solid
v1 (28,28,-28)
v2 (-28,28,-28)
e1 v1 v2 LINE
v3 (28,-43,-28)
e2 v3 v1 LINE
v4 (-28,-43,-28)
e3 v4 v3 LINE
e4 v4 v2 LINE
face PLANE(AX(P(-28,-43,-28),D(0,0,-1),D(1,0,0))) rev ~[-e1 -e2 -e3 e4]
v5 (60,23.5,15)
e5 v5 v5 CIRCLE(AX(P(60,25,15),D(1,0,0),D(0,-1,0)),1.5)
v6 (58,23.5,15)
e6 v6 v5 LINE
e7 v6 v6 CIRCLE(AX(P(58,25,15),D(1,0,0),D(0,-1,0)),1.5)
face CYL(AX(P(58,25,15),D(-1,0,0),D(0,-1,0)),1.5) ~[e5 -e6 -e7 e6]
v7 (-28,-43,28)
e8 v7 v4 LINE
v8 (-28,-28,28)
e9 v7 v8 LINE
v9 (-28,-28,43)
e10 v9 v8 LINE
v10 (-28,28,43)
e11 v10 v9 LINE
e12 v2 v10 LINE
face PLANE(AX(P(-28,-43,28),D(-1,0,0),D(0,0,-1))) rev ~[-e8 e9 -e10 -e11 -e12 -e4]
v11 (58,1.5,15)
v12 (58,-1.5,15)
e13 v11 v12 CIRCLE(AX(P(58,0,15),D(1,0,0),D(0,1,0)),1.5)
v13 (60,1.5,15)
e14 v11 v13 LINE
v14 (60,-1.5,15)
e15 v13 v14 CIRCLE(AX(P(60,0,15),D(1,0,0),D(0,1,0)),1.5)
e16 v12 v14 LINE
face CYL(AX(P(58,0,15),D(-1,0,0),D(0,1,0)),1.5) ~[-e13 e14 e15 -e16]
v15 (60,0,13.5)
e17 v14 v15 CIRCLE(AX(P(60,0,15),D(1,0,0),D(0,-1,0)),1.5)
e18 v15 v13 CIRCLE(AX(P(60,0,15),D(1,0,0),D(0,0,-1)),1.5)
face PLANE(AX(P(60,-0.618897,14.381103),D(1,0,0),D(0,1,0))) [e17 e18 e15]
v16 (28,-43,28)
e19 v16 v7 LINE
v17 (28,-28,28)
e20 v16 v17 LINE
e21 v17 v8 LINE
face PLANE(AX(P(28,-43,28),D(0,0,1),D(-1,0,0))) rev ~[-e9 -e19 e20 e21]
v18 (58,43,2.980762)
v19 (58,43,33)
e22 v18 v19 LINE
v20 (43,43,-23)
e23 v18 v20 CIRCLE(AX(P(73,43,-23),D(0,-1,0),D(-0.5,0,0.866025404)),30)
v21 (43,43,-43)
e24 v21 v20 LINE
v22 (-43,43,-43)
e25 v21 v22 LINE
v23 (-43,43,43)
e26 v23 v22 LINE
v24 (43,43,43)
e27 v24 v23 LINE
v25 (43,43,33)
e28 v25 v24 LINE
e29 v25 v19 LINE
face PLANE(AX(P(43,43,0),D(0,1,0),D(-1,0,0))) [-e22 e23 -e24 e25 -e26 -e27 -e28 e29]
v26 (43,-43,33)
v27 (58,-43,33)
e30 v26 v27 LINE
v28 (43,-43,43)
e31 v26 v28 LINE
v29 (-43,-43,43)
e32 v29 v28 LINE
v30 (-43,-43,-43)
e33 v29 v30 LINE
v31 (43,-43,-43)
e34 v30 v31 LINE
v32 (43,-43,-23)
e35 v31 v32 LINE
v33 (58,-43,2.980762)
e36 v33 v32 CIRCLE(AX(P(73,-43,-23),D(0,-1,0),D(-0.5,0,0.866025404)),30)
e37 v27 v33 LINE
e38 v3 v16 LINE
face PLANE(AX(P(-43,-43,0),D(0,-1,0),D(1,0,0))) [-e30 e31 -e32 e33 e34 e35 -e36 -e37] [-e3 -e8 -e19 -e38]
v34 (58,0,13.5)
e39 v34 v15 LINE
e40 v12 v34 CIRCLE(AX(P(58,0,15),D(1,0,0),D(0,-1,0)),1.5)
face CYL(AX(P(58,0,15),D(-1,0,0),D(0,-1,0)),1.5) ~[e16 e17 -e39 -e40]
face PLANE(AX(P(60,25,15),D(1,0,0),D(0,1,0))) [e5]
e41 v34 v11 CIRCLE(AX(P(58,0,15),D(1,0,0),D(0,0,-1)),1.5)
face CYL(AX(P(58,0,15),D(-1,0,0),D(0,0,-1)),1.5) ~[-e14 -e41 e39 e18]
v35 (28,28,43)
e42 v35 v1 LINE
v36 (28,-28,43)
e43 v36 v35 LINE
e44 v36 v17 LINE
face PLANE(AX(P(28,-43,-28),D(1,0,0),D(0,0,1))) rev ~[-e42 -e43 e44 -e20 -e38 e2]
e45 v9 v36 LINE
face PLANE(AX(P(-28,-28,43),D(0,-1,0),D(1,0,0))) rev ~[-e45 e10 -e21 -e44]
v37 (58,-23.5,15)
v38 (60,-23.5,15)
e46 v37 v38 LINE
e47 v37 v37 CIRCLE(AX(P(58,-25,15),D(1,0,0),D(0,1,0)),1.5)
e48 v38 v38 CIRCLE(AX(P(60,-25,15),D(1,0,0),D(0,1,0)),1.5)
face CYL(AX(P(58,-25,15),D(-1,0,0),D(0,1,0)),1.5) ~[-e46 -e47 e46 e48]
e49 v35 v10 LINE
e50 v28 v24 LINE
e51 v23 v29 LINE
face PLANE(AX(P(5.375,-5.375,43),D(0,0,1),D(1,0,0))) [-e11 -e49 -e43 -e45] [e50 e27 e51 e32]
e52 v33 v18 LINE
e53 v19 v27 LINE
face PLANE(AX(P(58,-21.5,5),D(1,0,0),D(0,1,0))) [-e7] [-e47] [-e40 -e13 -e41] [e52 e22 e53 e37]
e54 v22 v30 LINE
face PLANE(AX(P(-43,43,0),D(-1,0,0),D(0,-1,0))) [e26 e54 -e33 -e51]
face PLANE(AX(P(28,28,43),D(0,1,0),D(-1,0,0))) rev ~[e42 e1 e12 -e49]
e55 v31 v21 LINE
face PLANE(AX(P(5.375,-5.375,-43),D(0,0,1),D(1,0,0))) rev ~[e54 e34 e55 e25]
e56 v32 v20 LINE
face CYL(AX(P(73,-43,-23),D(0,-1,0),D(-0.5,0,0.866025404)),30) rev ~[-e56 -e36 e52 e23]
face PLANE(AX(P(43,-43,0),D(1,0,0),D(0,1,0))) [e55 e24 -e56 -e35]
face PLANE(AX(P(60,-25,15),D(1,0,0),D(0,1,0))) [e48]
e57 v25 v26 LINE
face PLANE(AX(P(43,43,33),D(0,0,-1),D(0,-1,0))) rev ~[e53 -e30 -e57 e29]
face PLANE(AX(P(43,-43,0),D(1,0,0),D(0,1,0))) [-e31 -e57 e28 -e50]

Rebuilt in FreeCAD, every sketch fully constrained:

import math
import FreeCAD as App
import Part
import Sketcher
Q = App.Units.Quantity


def add_polygon(sketch, points):
    """Adds a closed chain of lines whose ends are joined by coincident constraints."""
    first, n = sketch.GeometryCount, len(points)
    for a, b in zip(points, points[1:] + points[:1]):
        sketch.addGeometry(Part.LineSegment(App.Vector(*a, 0), App.Vector(*b, 0)), False)
    for i in range(n):
        sketch.addConstraint(Sketcher.Constraint("Coincident", first + i, 2, first + (i + 1) % n, 1))

doc = App.newDocument("Part")
body = doc.addObject("PartDesign::Body", "Body")

# Sketch on XY plane
sketch1 = body.newObject("Sketcher::SketchObject", "Sketch")
sketch1.AttachmentSupport = (doc.getObject("XY_Plane"), [""])
sketch1.MapMode = "FlatFace"
add_polygon(sketch1, [(-43, -43), (43, -43), (43, 43), (-43, 43)])  # lines 0-3
sketch1.addConstraint([
    Sketcher.Constraint("Horizontal", 0),
    Sketcher.Constraint("Vertical", 1),
    Sketcher.Constraint("Horizontal", 2),
    Sketcher.Constraint("Vertical", 3),
    Sketcher.Constraint("Symmetric", 0, 2, 2, 2, -1, 1),
    Sketcher.Constraint("Equal", 2, 1),
    Sketcher.Constraint("DistanceX", 0, 1, 0, 2, Q("86 mm")),
])
pad1 = body.newObject("PartDesign::Pad", "Pad")
pad1.Profile = sketch1
pad1.Type = "TwoLengths"
pad1.Length = 43
pad1.Length2 = 43

# Sketch on XY plane
sketch2 = body.newObject("Sketcher::SketchObject", "Sketch001")
sketch2.AttachmentSupport = (doc.getObject("XY_Plane"), [""])
sketch2.MapMode = "FlatFace"
sketch2.AttachmentOffset = App.Placement(App.Vector(0, 0, 43), App.Rotation())
add_polygon(sketch2, [(-28, 28), (-28, -28), (28, -28), (28, 28)])  # lines 0-3
sketch2.addConstraint([
    Sketcher.Constraint("Vertical", 0),
    Sketcher.Constraint("Horizontal", 1),
    Sketcher.Constraint("Vertical", 2),
    Sketcher.Constraint("Horizontal", 3),
    Sketcher.Constraint("Symmetric", 0, 2, 2, 2, -1, 1),
    Sketcher.Constraint("Equal", 3, 0),
    Sketcher.Constraint("DistanceX", 1, 1, 1, 2, Q("56 mm")),
])
pocket1 = body.newObject("PartDesign::Pocket", "Pocket")
pocket1.Profile = sketch2
pocket1.Length = 71

# Sketch on XZ plane
sketch3 = body.newObject("Sketcher::SketchObject", "Sketch002")
sketch3.AttachmentSupport = (doc.getObject("XZ_Plane"), [""])
sketch3.MapMode = "FlatFace"
sketch3.AttachmentOffset = App.Placement(App.Vector(0, 0, 43), App.Rotation())
add_polygon(sketch3, [(-28, 28), (-28, -28), (28, -28), (28, 28)])  # lines 0-3
sketch3.addConstraint([
    Sketcher.Constraint("Vertical", 0),
    Sketcher.Constraint("Horizontal", 1),
    Sketcher.Constraint("Vertical", 2),
    Sketcher.Constraint("Horizontal", 3),
    Sketcher.Constraint("Symmetric", 0, 2, 2, 2, -1, 1),
    Sketcher.Constraint("Equal", 3, 0),
    Sketcher.Constraint("DistanceX", 1, 1, 1, 2, Q("56 mm")),
])
pocket2 = body.newObject("PartDesign::Pocket", "Pocket001")
pocket2.Profile = sketch3
pocket2.Length = 71

# Sketch on YZ plane
sketch4 = body.newObject("Sketcher::SketchObject", "Sketch003")
sketch4.AttachmentSupport = (doc.getObject("YZ_Plane"), [""])
sketch4.MapMode = "FlatFace"
sketch4.AttachmentOffset = App.Placement(App.Vector(0, 0, 43), App.Rotation())
add_polygon(sketch4, [(-43, 33), (-43, -23), (43, -23), (43, 33)])  # lines 0-3
sketch4.addConstraint([
    Sketcher.Constraint("Vertical", 0),
    Sketcher.Constraint("Horizontal", 1),
    Sketcher.Constraint("Vertical", 2),
    Sketcher.Constraint("Horizontal", 3),
    Sketcher.Constraint("DistanceX", 1, 1, 1, 2, Q("86 mm")),
    Sketcher.Constraint("DistanceY", 0, 2, 0, 1, Q("56 mm")),
    Sketcher.Constraint("DistanceX", 0, 2, -1, 1, Q("43 mm")),
    Sketcher.Constraint("DistanceY", 0, 2, -1, 1, Q("23 mm")),
])
pad2 = body.newObject("PartDesign::Pad", "Pad001")
pad2.Profile = sketch4
pad2.Length = 15

# Sketch on XZ plane
sketch5 = body.newObject("Sketcher::SketchObject", "Sketch004")
sketch5.AttachmentSupport = (doc.getObject("XZ_Plane"), [""])
sketch5.MapMode = "FlatFace"
sketch5.AttachmentOffset = App.Placement(App.Vector(0, 0, 43), App.Rotation())
sketch5.addGeometry([
    Part.LineSegment(App.Vector(68, 7, 0), App.Vector(68, 6.58, 0)),  # 0
    Part.ArcOfCircle(Part.Circle(App.Vector(73, -23, 0), App.Vector(0, 0, 1), 30), math.radians(90), math.radians(99.59)),  # 1
    Part.LineSegment(App.Vector(73, 7, 0), App.Vector(68, 7, 0)),  # 2
    Part.ArcOfCircle(Part.Circle(App.Vector(73, -23, 0), App.Vector(0, 0, 1), 30), math.radians(120), math.radians(180)),  # 3
    Part.LineSegment(App.Vector(43, -23, 0), App.Vector(58, -23, 0)),  # 4
    Part.LineSegment(App.Vector(58, -23, 0), App.Vector(58, 2.98, 0)),  # 5
], False)
sketch5.addConstraint([
    Sketcher.Constraint("Coincident", 0, 2, 1, 2),
    Sketcher.Constraint("Tangent", 1, 1, 2, 1),
    Sketcher.Constraint("Coincident", 2, 2, 0, 1),
    Sketcher.Constraint("Coincident", 3, 2, 4, 1),
    Sketcher.Constraint("Coincident", 4, 2, 5, 1),
    Sketcher.Constraint("Coincident", 5, 2, 3, 1),
    Sketcher.Constraint("Vertical", 0),
    Sketcher.Constraint("Horizontal", 2),
    Sketcher.Constraint("Horizontal", 4),
    Sketcher.Constraint("Vertical", 5),
    Sketcher.Constraint("Coincident", 3, 3, 1, 3),
    Sketcher.Constraint("Equal", 1, 3),
    Sketcher.Constraint("Horizontal", 1, 3, 3, 2),
    Sketcher.Constraint("Radius", 1, Q("30 mm")),
    Sketcher.Constraint("DistanceX", 2, 2, 2, 1, Q("5 mm")),
    Sketcher.Constraint("DistanceX", 4, 1, 4, 2, Q("15 mm")),
    Sketcher.Constraint("DistanceX", -1, 1, 1, 3, Q("73 mm")),
    Sketcher.Constraint("DistanceY", 1, 3, -1, 1, Q("23 mm")),
])
pocket3 = body.newObject("PartDesign::Pocket", "Pocket002")
pocket3.Profile = sketch5
pocket3.Length = 100

# Sketch on YZ plane
sketch6 = body.newObject("Sketcher::SketchObject", "Sketch005")
sketch6.AttachmentSupport = (doc.getObject("YZ_Plane"), [""])
sketch6.MapMode = "FlatFace"
sketch6.AttachmentOffset = App.Placement(App.Vector(0, 0, 58), App.Rotation())
sketch6.addGeometry([
    Part.ArcOfCircle(Part.Circle(App.Vector(0, 15, 0), App.Vector(0, 0, 1), 1.5), math.radians(180), math.radians(270)),  # 0
    Part.ArcOfCircle(Part.Circle(App.Vector(0, 15, 0), App.Vector(0, 0, 1), 1.5), math.radians(-90), math.radians(0)),  # 1
    Part.ArcOfCircle(Part.Circle(App.Vector(0, 15, 0), App.Vector(0, 0, 1), 1.5), math.radians(0), math.radians(180)),  # 2
    Part.Circle(App.Vector(-25, 15, 0), App.Vector(0, 0, 1), 1.5),  # 3
    Part.Circle(App.Vector(25, 15, 0), App.Vector(0, 0, 1), 1.5),  # 4
], False)
sketch6.addConstraint([
    Sketcher.Constraint("Tangent", 0, 2, 1, 1),
    Sketcher.Constraint("Tangent", 1, 2, 2, 1),
    Sketcher.Constraint("Tangent", 2, 2, 0, 1),
    Sketcher.Constraint("Equal", 2, 3),
    Sketcher.Constraint("Equal", 3, 4),
    Sketcher.Constraint("Symmetric", 3, 3, 4, 3, -2),
    Sketcher.Constraint("Symmetric", 1, 2, 2, 2, -2),
    Sketcher.Constraint("PointOnObject", 0, 2, -2),
    Sketcher.Constraint("Horizontal", 2, 3, 3, 3),
    Sketcher.Constraint("Horizontal", 4, 3, 1, 2),
    Sketcher.Constraint("Diameter", 3, Q("3 mm")),
    Sketcher.Constraint("DistanceY", -1, 1, 0, 3, Q("15 mm")),
    Sketcher.Constraint("DistanceX", 3, 3, -1, 1, Q("25 mm")),
])
pad3 = body.newObject("PartDesign::Pad", "Pad002")
pad3.Profile = sketch6
pad3.Length = 2

doc.recompute()
